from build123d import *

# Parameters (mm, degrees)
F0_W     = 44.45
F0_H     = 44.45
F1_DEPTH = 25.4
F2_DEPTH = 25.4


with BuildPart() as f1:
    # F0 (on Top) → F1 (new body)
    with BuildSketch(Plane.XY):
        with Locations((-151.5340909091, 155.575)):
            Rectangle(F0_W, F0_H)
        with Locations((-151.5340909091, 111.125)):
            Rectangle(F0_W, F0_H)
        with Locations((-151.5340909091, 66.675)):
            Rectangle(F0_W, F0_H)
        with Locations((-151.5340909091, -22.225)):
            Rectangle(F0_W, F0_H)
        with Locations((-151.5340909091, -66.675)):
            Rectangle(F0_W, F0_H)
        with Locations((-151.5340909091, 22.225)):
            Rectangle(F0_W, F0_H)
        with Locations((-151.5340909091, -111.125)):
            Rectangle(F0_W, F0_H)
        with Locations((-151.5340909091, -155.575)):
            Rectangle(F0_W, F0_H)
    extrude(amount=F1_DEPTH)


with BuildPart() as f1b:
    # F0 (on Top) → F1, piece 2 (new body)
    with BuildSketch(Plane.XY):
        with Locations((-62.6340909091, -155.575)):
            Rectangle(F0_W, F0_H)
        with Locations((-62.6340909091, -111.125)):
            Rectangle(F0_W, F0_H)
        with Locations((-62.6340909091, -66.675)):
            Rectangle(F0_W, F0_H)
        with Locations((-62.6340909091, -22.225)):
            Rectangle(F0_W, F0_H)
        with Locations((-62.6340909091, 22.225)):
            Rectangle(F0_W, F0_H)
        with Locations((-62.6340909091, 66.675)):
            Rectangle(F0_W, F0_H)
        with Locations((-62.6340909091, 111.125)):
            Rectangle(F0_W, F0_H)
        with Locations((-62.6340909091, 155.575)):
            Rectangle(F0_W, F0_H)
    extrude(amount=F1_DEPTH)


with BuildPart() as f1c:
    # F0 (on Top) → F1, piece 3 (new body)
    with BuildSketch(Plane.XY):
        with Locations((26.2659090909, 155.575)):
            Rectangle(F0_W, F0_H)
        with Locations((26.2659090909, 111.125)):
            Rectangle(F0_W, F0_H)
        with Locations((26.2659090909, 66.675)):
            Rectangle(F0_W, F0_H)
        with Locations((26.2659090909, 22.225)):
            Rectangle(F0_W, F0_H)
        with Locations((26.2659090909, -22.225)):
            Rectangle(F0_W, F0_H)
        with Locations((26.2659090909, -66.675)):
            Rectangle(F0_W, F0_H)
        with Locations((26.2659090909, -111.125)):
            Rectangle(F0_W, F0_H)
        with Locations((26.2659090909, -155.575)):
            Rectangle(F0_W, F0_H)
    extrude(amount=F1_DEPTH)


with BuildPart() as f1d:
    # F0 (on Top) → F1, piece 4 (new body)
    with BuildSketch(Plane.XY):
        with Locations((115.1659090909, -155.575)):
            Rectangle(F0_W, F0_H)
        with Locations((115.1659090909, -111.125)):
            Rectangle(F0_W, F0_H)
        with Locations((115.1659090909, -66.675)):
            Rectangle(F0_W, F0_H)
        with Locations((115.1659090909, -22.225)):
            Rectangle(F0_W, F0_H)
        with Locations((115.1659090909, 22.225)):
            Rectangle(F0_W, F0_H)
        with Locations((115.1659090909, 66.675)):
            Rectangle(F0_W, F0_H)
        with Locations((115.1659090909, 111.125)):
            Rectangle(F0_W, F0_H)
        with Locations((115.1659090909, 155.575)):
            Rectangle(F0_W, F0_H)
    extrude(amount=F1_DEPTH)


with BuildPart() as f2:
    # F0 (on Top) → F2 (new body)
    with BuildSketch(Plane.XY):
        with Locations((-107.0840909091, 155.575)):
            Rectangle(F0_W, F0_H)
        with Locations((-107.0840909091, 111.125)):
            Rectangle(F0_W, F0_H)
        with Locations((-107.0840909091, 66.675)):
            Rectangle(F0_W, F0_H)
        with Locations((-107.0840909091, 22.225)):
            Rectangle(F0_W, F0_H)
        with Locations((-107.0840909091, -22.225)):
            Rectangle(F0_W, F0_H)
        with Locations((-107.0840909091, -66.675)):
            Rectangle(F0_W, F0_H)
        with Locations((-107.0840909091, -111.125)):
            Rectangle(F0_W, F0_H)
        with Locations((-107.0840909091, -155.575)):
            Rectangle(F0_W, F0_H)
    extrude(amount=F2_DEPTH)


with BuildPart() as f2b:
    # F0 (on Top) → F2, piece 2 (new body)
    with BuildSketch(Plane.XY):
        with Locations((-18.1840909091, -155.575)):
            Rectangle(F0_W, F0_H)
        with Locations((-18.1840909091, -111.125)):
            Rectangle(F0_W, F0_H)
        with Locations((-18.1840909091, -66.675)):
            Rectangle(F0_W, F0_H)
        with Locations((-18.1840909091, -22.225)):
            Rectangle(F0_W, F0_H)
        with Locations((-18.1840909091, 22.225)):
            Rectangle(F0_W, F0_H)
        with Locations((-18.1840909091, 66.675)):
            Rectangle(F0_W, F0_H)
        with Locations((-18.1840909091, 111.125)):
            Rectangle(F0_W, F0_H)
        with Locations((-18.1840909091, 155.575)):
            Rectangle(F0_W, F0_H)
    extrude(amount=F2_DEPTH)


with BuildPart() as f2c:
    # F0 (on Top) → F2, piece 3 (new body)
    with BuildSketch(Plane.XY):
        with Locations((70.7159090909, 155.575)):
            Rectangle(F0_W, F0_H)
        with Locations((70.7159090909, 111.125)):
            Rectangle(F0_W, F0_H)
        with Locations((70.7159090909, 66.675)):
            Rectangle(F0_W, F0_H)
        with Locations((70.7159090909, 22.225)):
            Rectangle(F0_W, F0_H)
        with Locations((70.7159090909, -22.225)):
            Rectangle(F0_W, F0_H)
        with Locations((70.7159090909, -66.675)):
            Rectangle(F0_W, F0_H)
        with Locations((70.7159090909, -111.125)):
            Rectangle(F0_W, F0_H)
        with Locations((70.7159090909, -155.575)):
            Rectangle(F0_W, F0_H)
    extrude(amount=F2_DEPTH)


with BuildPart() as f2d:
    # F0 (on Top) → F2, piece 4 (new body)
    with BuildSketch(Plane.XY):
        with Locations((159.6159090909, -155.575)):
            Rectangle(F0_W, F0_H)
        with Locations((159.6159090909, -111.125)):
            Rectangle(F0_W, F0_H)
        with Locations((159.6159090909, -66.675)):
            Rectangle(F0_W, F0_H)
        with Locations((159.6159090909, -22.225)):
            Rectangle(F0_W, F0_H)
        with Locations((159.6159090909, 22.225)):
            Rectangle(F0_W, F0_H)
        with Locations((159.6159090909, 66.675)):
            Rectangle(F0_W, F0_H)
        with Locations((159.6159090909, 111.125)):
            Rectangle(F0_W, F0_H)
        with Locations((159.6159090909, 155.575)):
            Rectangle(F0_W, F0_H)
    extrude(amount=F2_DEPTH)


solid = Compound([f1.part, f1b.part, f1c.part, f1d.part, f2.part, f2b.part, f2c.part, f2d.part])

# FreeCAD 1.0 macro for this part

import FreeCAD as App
import Part
import Sketcher

V = App.Vector
Q = App.Units.Quantity


def add_polygon(sketch, points):
    """Adds a closed chain of lines whose ends are joined by coincident constraints."""
    first, n = sketch.GeometryCount, len(points)
    for a, b in zip(points, points[1:] + points[:1]):
        sketch.addGeometry(Part.LineSegment(App.Vector(*a, 0), App.Vector(*b, 0)), False)
    for i in range(n):
        sketch.addConstraint(Sketcher.Constraint("Coincident", first + i, 2, first + (i + 1) % n, 1))

doc = App.newDocument("Part")
body = doc.addObject("PartDesign::Body", "Body")

sketch1 = doc.addObject("Sketcher::SketchObject", "Sketch")
body.addObject(sketch1)
sketch1.AttachmentSupport = (doc.XY_Plane, [""])
sketch1.MapMode = "FlatFace"
add_polygon(sketch1, [(-173.759091, 177.8), (-173.759091, -177.8), (-129.309091, -177.8), (-129.309091, 177.8)])
sketch1.addConstraint([
    Sketcher.Constraint("Vertical", 0),
    Sketcher.Constraint("Horizontal", 1),
    Sketcher.Constraint("Vertical", 2),
    Sketcher.Constraint("Horizontal", 3),
    Sketcher.Constraint("DistanceY", 0, 2, 0, 1, Q("14 in")),
    Sketcher.Constraint("DistanceY", 0, 2, -1, 1, Q("7 in")),
    Sketcher.Constraint("DistanceX", 1, 1, 1, 2, Q("1.75 in")),
    Sketcher.Constraint("DistanceX", 0, 2, -1, 1, 173.759091),
])
pad1 = doc.addObject("PartDesign::Pad", "Pad")
body.addObject(pad1)
pad1.Profile = sketch1
pad1.Length = Q("1 in")
body2 = doc.addObject("PartDesign::Body", "Body001")

sketch2 = doc.addObject("Sketcher::SketchObject", "Sketch001")
body2.addObject(sketch2)
sketch2.AttachmentSupport = (doc.getObject("XY_Plane001"), [""])
sketch2.MapMode = "FlatFace"
add_polygon(sketch2, [(-84.859091, -177.8), (-40.409091, -177.8), (-40.409091, 177.8), (-84.859091, 177.8)])
sketch2.addConstraint([
    Sketcher.Constraint("Horizontal", 0),
    Sketcher.Constraint("Vertical", 1),
    Sketcher.Constraint("Horizontal", 2),
    Sketcher.Constraint("Vertical", 3),
    Sketcher.Constraint("DistanceY", 1, 1, 1, 2, Q("14 in")),
    Sketcher.Constraint("DistanceY", 0, 2, -1, 1, Q("7 in")),
    Sketcher.Constraint("DistanceX", 0, 1, 0, 2, Q("1.75 in")),
    Sketcher.Constraint("DistanceX", 0, 2, -1, 1, 40.409091),
])
pad2 = doc.addObject("PartDesign::Pad", "Pad001")
body2.addObject(pad2)
pad2.Profile = sketch2
pad2.Length = Q("1 in")
body3 = doc.addObject("PartDesign::Body", "Body002")

sketch3 = doc.addObject("Sketcher::SketchObject", "Sketch002")
body3.addObject(sketch3)
sketch3.AttachmentSupport = (doc.getObject("XY_Plane002"), [""])
sketch3.MapMode = "FlatFace"
add_polygon(sketch3, [(4.040909, 177.8), (4.040909, -177.8), (48.490909, -177.8), (48.490909, 177.8)])
sketch3.addConstraint([
    Sketcher.Constraint("Vertical", 0),
    Sketcher.Constraint("Horizontal", 1),
    Sketcher.Constraint("Vertical", 2),
    Sketcher.Constraint("Horizontal", 3),
    Sketcher.Constraint("DistanceY", 0, 2, 0, 1, Q("14 in")),
    Sketcher.Constraint("DistanceY", 0, 2, -1, 1, Q("7 in")),
    Sketcher.Constraint("DistanceX", 1, 1, 1, 2, Q("1.75 in")),
    Sketcher.Constraint("DistanceX", -1, 1, 0, 2, 4.040909),
])
pad3 = doc.addObject("PartDesign::Pad", "Pad002")
body3.addObject(pad3)
pad3.Profile = sketch3
pad3.Length = Q("1 in")
body4 = doc.addObject("PartDesign::Body", "Body003")

sketch4 = doc.addObject("Sketcher::SketchObject", "Sketch003")
body4.addObject(sketch4)
sketch4.AttachmentSupport = (doc.getObject("XY_Plane003"), [""])
sketch4.MapMode = "FlatFace"
add_polygon(sketch4, [(92.940909, -177.8), (137.390909, -177.8), (137.390909, 177.8), (92.940909, 177.8)])
sketch4.addConstraint([
    Sketcher.Constraint("Horizontal", 0),
    Sketcher.Constraint("Vertical", 1),
    Sketcher.Constraint("Horizontal", 2),
    Sketcher.Constraint("Vertical", 3),
    Sketcher.Constraint("DistanceY", 1, 1, 1, 2, Q("14 in")),
    Sketcher.Constraint("DistanceY", 0, 2, -1, 1, Q("7 in")),
    Sketcher.Constraint("DistanceX", 0, 1, 0, 2, Q("1.75 in")),
    Sketcher.Constraint("DistanceX", -1, 1, 0, 2, 137.390909),
])
pad4 = doc.addObject("PartDesign::Pad", "Pad003")
body4.addObject(pad4)
pad4.Profile = sketch4
pad4.Length = Q("1 in")
body5 = doc.addObject("PartDesign::Body", "Body004")

sketch5 = doc.addObject("Sketcher::SketchObject", "Sketch004")
body5.addObject(sketch5)
sketch5.AttachmentSupport = (doc.getObject("XY_Plane004"), [""])
sketch5.MapMode = "FlatFace"
add_polygon(sketch5, [(-129.309091, 177.8), (-129.309091, -177.8), (-84.859091, -177.8), (-84.859091, 177.8)])
sketch5.addConstraint([
    Sketcher.Constraint("Vertical", 0),
    Sketcher.Constraint("Horizontal", 1),
    Sketcher.Constraint("Vertical", 2),
    Sketcher.Constraint("Horizontal", 3),
    Sketcher.Constraint("DistanceY", 0, 2, 0, 1, Q("14 in")),
    Sketcher.Constraint("DistanceY", 0, 2, -1, 1, Q("7 in")),
    Sketcher.Constraint("DistanceX", 1, 1, 1, 2, Q("1.75 in")),
    Sketcher.Constraint("DistanceX", 0, 2, -1, 1, 129.309091),
])
pad5 = doc.addObject("PartDesign::Pad", "Pad004")
body5.addObject(pad5)
pad5.Profile = sketch5
pad5.Length = Q("1 in")
body6 = doc.addObject("PartDesign::Body", "Body005")

sketch6 = doc.addObject("Sketcher::SketchObject", "Sketch005")
body6.addObject(sketch6)
sketch6.AttachmentSupport = (doc.getObject("XY_Plane005"), [""])
sketch6.MapMode = "FlatFace"
add_polygon(sketch6, [(-40.409091, -177.8), (4.040909, -177.8), (4.040909, 177.8), (-40.409091, 177.8)])
sketch6.addConstraint([
    Sketcher.Constraint("Horizontal", 0),
    Sketcher.Constraint("Vertical", 1),
    Sketcher.Constraint("Horizontal", 2),
    Sketcher.Constraint("Vertical", 3),
    Sketcher.Constraint("DistanceY", 1, 1, 1, 2, Q("14 in")),
    Sketcher.Constraint("DistanceY", 0, 2, -1, 1, Q("7 in")),
    Sketcher.Constraint("DistanceX", 0, 1, 0, 2, Q("1.75 in")),
    Sketcher.Constraint("DistanceX", -1, 1, 0, 2, 4.040909),
])
pad6 = doc.addObject("PartDesign::Pad", "Pad005")
body6.addObject(pad6)
pad6.Profile = sketch6
pad6.Length = Q("1 in")
body7 = doc.addObject("PartDesign::Body", "Body006")

sketch7 = doc.addObject("Sketcher::SketchObject", "Sketch006")
body7.addObject(sketch7)
sketch7.AttachmentSupport = (doc.getObject("XY_Plane006"), [""])
sketch7.MapMode = "FlatFace"
add_polygon(sketch7, [(48.490909, 177.8), (48.490909, -177.8), (92.940909, -177.8), (92.940909, 177.8)])
sketch7.addConstraint([
    Sketcher.Constraint("Vertical", 0),
    Sketcher.Constraint("Horizontal", 1),
    Sketcher.Constraint("Vertical", 2),
    Sketcher.Constraint("Horizontal", 3),
    Sketcher.Constraint("DistanceY", 0, 2, 0, 1, Q("14 in")),
    Sketcher.Constraint("DistanceY", 0, 2, -1, 1, Q("7 in")),
    Sketcher.Constraint("DistanceX", 1, 1, 1, 2, Q("1.75 in")),
    Sketcher.Constraint("DistanceX", -1, 1, 0, 2, 48.490909),
])
pad7 = doc.addObject("PartDesign::Pad", "Pad006")
body7.addObject(pad7)
pad7.Profile = sketch7
pad7.Length = Q("1 in")
body8 = doc.addObject("PartDesign::Body", "Body007")

sketch8 = doc.addObject("Sketcher::SketchObject", "Sketch007")
body8.addObject(sketch8)
sketch8.AttachmentSupport = (doc.getObject("XY_Plane007"), [""])
sketch8.MapMode = "FlatFace"
add_polygon(sketch8, [(137.390909, -177.8), (181.840909, -177.8), (181.840909, 177.8), (137.390909, 177.8)])
sketch8.addConstraint([
    Sketcher.Constraint("Horizontal", 0),
    Sketcher.Constraint("Vertical", 1),
    Sketcher.Constraint("Horizontal", 2),
    Sketcher.Constraint("Vertical", 3),
    Sketcher.Constraint("DistanceY", 1, 1, 1, 2, Q("14 in")),
    Sketcher.Constraint("DistanceY", 0, 2, -1, 1, Q("7 in")),
    Sketcher.Constraint("DistanceX", 0, 1, 0, 2, Q("1.75 in")),
    Sketcher.Constraint("DistanceX", -1, 1, 0, 2, 181.840909),
])
pad8 = doc.addObject("PartDesign::Pad", "Pad007")
body8.addObject(pad8)
pad8.Profile = sketch8
pad8.Length = Q("1 in")

doc.recompute()
